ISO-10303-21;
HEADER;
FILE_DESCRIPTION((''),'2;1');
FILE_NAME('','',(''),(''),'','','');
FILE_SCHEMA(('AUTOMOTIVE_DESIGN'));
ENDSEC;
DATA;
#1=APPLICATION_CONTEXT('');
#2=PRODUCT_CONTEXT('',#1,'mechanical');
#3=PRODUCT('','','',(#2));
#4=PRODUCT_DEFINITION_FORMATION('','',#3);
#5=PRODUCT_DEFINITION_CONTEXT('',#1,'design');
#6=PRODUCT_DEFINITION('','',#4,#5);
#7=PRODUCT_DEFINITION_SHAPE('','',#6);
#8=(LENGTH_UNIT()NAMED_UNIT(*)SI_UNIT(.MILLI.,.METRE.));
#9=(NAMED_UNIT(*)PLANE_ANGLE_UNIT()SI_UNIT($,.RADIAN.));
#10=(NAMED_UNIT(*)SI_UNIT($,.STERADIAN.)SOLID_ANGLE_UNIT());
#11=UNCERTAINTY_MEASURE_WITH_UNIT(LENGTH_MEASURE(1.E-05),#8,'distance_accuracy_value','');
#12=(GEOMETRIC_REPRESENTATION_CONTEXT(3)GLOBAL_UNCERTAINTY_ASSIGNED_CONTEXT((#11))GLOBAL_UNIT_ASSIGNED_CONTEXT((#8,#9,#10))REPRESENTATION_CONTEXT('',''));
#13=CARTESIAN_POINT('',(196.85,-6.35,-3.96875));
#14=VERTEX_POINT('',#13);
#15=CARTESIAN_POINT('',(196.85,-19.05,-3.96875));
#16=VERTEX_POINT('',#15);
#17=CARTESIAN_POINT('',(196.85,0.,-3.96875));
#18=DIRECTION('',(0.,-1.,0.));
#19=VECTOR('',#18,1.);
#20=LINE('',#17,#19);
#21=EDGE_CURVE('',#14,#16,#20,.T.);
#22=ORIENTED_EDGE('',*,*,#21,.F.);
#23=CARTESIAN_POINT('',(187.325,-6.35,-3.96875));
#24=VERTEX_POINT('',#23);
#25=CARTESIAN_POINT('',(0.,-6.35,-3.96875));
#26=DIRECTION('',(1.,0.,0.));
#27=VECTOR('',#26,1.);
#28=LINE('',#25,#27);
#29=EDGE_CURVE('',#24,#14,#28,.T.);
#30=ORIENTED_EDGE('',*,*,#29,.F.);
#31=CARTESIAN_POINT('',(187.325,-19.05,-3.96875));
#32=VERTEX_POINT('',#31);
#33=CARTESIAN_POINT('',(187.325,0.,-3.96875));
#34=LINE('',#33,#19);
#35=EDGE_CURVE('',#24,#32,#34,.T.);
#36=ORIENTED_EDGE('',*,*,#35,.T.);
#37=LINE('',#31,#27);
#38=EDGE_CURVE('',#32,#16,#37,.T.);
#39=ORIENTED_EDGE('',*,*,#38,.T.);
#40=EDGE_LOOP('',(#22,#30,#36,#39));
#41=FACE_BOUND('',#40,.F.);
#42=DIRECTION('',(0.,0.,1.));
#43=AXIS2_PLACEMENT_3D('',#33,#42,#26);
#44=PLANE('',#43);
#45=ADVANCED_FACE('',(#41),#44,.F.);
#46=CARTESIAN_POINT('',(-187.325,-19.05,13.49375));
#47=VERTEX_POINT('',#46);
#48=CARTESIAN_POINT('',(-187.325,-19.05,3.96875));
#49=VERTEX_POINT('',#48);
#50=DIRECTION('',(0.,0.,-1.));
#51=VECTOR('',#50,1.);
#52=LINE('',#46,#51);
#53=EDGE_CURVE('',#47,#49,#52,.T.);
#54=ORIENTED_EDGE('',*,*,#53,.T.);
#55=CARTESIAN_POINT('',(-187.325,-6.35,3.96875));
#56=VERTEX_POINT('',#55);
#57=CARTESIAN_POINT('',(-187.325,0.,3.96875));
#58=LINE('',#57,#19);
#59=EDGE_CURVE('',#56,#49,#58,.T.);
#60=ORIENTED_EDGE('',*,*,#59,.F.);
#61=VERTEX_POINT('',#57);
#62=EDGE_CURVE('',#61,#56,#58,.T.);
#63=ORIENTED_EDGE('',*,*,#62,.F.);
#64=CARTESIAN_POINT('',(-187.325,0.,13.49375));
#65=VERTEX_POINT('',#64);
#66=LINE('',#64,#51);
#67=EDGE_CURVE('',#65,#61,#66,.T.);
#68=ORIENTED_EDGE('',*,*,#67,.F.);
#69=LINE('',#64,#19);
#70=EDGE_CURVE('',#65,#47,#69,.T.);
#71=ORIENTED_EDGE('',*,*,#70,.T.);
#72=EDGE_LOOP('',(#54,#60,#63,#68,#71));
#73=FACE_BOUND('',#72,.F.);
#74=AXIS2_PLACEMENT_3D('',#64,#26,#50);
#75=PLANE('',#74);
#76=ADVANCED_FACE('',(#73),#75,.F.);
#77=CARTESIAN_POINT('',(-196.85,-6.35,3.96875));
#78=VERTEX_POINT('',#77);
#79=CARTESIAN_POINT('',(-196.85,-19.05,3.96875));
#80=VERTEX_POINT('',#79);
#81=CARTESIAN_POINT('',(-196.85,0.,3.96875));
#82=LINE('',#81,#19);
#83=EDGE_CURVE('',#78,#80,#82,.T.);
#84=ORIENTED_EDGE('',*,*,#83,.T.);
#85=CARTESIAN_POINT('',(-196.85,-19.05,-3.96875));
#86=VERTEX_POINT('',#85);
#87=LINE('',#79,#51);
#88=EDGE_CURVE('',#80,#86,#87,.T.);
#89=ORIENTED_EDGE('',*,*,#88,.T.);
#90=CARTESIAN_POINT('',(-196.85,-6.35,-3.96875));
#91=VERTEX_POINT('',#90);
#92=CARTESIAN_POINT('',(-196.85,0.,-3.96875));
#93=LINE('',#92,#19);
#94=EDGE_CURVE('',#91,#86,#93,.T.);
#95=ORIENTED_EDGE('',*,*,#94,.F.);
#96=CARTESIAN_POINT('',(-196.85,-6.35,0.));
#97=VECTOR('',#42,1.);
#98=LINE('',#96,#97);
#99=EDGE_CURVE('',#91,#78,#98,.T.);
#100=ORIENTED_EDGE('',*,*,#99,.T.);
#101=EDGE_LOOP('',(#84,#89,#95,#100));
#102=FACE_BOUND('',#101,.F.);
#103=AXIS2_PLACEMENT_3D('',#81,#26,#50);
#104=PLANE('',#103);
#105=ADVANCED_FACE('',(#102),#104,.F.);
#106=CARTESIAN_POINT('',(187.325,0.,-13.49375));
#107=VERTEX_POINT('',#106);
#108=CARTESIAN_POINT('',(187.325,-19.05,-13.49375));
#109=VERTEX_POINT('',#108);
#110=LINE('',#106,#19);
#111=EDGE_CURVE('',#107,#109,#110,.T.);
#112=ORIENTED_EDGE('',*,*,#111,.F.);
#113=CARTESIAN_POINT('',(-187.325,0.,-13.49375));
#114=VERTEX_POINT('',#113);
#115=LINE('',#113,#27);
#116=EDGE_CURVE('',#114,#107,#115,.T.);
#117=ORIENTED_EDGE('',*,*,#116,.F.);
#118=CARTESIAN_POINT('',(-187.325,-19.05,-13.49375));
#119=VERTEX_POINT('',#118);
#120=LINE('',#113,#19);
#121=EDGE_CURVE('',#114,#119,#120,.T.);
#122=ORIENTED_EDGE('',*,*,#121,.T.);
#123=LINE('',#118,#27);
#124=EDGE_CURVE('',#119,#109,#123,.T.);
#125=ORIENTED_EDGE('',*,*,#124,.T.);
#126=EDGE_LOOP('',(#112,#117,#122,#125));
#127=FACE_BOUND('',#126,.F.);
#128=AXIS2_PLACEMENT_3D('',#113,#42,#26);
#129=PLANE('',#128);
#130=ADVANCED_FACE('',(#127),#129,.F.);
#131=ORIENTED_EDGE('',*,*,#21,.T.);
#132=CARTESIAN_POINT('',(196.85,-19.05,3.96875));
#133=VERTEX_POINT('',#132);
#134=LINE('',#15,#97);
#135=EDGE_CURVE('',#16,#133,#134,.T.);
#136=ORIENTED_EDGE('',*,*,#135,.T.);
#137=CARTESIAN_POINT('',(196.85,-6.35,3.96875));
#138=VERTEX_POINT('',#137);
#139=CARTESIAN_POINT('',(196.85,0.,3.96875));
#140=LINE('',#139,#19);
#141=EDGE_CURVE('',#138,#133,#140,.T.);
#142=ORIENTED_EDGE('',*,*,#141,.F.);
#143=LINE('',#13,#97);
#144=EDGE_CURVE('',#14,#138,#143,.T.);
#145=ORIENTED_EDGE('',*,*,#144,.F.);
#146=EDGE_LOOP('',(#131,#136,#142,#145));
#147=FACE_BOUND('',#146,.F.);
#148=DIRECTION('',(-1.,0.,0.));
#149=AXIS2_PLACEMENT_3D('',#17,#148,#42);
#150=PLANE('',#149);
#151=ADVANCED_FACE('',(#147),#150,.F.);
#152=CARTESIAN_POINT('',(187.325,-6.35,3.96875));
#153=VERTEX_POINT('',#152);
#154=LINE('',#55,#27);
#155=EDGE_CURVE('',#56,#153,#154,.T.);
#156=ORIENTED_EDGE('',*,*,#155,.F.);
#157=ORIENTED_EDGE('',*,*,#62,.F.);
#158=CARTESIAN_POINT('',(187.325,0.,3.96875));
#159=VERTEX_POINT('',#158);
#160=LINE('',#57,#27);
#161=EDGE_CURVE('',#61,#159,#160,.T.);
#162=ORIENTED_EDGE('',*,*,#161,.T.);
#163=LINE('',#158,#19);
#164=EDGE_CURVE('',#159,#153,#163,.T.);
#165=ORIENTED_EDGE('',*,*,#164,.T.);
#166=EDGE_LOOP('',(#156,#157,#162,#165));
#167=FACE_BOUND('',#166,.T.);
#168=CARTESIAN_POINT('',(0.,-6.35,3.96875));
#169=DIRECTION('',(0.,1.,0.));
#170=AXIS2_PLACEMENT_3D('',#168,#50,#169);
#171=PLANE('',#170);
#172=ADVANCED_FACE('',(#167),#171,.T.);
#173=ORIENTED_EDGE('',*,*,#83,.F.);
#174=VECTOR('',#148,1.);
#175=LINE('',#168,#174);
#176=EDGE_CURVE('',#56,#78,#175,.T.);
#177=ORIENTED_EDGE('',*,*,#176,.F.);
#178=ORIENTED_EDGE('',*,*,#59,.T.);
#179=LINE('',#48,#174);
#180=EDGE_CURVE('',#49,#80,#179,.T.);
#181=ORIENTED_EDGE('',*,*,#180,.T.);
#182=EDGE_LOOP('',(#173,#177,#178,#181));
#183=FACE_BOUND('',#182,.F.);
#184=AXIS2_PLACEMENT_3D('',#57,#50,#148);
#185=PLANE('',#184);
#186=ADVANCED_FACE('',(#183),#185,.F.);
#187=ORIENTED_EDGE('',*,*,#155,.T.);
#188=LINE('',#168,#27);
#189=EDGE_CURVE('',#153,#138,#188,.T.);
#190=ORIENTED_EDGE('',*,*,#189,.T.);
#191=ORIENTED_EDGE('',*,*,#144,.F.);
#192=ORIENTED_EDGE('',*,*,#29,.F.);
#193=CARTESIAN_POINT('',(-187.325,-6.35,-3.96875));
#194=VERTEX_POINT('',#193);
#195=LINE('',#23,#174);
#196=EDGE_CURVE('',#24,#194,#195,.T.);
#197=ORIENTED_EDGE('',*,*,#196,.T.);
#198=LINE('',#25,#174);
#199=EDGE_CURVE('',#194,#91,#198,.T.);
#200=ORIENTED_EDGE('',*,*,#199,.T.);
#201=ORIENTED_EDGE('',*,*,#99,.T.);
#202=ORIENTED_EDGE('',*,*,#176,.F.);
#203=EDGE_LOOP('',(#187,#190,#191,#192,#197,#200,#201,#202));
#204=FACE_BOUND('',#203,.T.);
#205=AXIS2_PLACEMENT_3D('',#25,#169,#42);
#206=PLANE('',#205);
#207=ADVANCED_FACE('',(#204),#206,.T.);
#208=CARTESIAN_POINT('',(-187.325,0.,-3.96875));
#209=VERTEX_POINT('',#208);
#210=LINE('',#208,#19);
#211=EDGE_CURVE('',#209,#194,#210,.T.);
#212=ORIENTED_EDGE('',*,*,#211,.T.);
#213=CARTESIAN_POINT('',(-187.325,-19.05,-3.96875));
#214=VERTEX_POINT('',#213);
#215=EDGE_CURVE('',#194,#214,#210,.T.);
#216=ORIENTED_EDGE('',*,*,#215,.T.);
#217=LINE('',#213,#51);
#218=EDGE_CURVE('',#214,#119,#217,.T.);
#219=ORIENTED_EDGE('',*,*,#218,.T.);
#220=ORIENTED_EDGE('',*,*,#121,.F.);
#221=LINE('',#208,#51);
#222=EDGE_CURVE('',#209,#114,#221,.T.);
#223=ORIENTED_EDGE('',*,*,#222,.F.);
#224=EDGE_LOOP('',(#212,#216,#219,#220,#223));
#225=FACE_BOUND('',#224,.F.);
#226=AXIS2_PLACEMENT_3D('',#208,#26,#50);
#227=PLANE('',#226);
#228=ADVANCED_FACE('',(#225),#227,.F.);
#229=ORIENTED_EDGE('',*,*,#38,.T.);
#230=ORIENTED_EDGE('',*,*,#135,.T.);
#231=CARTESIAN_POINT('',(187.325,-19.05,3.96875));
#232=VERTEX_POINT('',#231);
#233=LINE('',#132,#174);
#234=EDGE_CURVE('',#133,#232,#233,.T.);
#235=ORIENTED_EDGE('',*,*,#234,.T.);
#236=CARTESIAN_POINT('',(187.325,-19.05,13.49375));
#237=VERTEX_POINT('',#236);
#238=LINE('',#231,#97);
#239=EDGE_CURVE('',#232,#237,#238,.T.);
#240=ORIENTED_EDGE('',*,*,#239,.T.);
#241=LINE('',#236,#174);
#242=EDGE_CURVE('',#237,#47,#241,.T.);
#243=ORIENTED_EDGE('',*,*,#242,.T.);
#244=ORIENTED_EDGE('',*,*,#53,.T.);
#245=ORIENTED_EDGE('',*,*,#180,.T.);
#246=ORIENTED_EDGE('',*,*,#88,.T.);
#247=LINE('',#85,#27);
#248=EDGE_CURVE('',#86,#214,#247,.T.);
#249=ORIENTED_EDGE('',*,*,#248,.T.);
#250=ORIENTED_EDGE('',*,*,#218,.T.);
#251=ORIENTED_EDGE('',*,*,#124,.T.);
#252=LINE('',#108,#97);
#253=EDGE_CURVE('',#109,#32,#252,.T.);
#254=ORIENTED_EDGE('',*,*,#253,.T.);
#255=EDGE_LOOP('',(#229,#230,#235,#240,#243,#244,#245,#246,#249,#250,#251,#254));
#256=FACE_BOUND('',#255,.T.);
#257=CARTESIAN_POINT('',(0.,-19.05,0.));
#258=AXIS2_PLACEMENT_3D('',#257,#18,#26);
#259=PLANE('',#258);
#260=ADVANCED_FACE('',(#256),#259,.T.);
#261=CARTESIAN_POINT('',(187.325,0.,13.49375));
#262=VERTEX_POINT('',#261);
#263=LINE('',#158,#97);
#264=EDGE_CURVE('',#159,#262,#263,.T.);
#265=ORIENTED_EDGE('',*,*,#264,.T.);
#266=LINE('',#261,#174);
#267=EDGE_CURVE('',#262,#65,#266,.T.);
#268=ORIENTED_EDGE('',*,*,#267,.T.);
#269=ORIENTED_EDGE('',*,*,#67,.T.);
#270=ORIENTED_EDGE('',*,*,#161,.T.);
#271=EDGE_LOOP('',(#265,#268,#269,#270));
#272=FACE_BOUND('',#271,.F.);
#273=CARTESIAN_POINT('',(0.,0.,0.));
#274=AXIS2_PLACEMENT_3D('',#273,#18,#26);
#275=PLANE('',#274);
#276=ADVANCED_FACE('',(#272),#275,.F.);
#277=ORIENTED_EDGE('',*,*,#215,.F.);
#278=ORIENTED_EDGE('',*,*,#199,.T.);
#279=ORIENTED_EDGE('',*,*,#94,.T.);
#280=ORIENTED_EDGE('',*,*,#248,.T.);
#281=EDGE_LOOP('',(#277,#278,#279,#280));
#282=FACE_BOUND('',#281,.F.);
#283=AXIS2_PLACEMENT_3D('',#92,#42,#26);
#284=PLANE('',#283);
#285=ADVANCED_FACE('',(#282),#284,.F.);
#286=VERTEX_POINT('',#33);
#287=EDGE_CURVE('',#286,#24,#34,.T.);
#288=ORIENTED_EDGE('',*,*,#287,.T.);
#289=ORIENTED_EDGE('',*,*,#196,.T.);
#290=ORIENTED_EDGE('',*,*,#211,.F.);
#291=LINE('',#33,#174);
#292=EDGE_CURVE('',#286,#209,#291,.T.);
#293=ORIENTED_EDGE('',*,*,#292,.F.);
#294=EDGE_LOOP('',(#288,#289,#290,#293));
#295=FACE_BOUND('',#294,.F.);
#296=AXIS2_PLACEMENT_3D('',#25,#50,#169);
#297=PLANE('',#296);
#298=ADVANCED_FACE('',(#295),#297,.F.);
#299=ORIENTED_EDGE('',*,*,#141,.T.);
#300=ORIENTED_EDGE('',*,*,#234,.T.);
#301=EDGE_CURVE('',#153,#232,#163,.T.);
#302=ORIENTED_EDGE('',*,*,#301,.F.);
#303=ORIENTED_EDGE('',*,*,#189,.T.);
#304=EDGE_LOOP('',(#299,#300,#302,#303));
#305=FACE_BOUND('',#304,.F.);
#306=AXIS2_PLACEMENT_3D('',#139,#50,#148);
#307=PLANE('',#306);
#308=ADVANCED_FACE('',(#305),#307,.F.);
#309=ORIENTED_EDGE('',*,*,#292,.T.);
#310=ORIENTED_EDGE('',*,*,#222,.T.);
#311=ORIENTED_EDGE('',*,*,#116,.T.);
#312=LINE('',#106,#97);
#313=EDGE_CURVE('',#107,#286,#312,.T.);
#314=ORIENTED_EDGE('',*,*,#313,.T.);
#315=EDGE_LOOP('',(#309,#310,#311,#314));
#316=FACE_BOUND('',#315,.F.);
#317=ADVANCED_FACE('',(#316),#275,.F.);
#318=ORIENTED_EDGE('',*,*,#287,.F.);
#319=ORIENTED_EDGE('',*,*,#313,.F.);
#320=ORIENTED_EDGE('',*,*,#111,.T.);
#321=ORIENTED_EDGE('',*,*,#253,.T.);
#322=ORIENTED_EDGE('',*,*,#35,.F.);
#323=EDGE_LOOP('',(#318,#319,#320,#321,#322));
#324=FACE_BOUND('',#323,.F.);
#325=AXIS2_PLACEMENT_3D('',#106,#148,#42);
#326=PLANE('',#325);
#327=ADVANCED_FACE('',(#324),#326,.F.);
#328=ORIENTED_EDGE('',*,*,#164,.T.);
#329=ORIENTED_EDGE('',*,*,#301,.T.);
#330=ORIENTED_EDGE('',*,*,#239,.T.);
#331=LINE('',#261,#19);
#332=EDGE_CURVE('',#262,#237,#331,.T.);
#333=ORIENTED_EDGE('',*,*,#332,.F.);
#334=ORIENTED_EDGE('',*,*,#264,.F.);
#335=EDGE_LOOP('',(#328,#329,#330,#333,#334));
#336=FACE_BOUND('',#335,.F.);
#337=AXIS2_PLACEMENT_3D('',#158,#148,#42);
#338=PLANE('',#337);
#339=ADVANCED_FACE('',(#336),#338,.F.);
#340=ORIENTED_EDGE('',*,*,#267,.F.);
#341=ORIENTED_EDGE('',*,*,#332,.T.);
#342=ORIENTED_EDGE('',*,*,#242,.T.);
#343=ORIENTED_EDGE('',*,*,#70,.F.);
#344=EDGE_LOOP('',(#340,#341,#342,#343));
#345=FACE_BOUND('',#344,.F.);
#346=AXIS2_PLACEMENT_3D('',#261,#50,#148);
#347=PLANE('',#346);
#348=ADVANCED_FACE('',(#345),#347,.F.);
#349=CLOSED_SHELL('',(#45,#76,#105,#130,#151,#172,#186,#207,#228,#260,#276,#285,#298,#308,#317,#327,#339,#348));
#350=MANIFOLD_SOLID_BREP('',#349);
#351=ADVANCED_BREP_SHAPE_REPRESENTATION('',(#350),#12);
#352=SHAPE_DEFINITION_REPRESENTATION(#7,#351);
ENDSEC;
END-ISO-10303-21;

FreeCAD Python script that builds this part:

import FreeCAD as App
import Part
import Sketcher
from FreeCAD import Vector
Q = App.Units.Quantity

doc = App.newDocument("Part")
body = doc.addObject("PartDesign::Body", "Body")

# Sketch on XZ plane
sketch1 = body.newObject("Sketcher::SketchObject", "Sketch")
sketch1.AttachmentSupport = (doc.getObject("XZ_Plane"), [""])
sketch1.MapMode = "FlatFace"
sketch1.addGeometry([
    Part.LineSegment(Vector(-197, 4, 0), Vector(-197, -4, 0)),  # 0
    Part.LineSegment(Vector(-197, -4, 0), Vector(-187, -4, 0)),  # 1
    Part.LineSegment(Vector(-187, -4, 0), Vector(-187, -13, 0)),  # 2
    Part.LineSegment(Vector(-187, -13, 0), Vector(187, -13, 0)),  # 3
    Part.LineSegment(Vector(187, -13, 0), Vector(187, -4, 0)),  # 4
    Part.LineSegment(Vector(187, -4, 0), Vector(197, -4, 0)),  # 5
    Part.LineSegment(Vector(197, -4, 0), Vector(197, 4, 0)),  # 6
    Part.LineSegment(Vector(197, 4, 0), Vector(187, 4, 0)),  # 7
    Part.LineSegment(Vector(187, 4, 0), Vector(187, 13, 0)),  # 8
    Part.LineSegment(Vector(187, 13, 0), Vector(-187, 13, 0)),  # 9
    Part.LineSegment(Vector(-187, 13, 0), Vector(-187, 4, 0)),  # 10
    Part.LineSegment(Vector(-187, 4, 0), Vector(-197, 4, 0)),  # 11
], False)
sketch1.addConstraint([
    Sketcher.Constraint("Coincident", 0, 2, 1, 1),
    Sketcher.Constraint("Coincident", 1, 2, 2, 1),
    Sketcher.Constraint("Coincident", 2, 2, 3, 1),
    Sketcher.Constraint("Coincident", 3, 2, 4, 1),
    Sketcher.Constraint("Coincident", 4, 2, 5, 1),
    Sketcher.Constraint("Coincident", 5, 2, 6, 1),
    Sketcher.Constraint("Coincident", 6, 2, 7, 1),
    Sketcher.Constraint("Coincident", 7, 2, 8, 1),
    Sketcher.Constraint("Coincident", 8, 2, 9, 1),
    Sketcher.Constraint("Coincident", 9, 2, 10, 1),
    Sketcher.Constraint("Coincident", 10, 2, 11, 1),
    Sketcher.Constraint("Coincident", 11, 2, 0, 1),
    Sketcher.Constraint("Vertical", 0),
    Sketcher.Constraint("Horizontal", 1),
    Sketcher.Constraint("Vertical", 2),
    Sketcher.Constraint("Horizontal", 3),
    Sketcher.Constraint("Vertical", 4),
    Sketcher.Constraint("Horizontal", 5),
    Sketcher.Constraint("Vertical", 6),
    Sketcher.Constraint("Horizontal", 7),
    Sketcher.Constraint("Vertical", 8),
    Sketcher.Constraint("Horizontal", 9),
    Sketcher.Constraint("Vertical", 10),
    Sketcher.Constraint("Horizontal", 11),
    Sketcher.Constraint("Symmetric", 0, 2, 6, 2, -1, 1),
    Sketcher.Constraint("Symmetric", 2, 2, 8, 2, -1, 1),
    Sketcher.Constraint("Symmetric", 4, 2, 10, 2, -1, 1),
    Sketcher.Constraint("Symmetric", 1, 2, 4, 2, -2),
    Sketcher.Constraint("Equal", 11, 2),
    Sketcher.Constraint("DistanceX", 3, 1, 3, 2, Q("14.75 in")),
    Sketcher.Constraint("DistanceX", 0, 2, 5, 2, Q("15.5 in")),
    Sketcher.Constraint("DistanceY", 0, 2, 0, 1, Q("0.3125 in")),
])
pad1 = body.newObject("PartDesign::Pad", "Pad")
pad1.Profile = sketch1
pad1.Length = Q("0.75 in")

# Sketch on YZ plane
sketch2 = body.newObject("Sketcher::SketchObject", "Sketch001")
sketch2.AttachmentSupport = (doc.getObject("YZ_Plane"), [""])
sketch2.MapMode = "FlatFace"
sketch2.addGeometry([
    Part.LineSegment(Vector(-6, 4, 0), Vector(-6, -4, 0)),
    Part.LineSegment(Vector(-6, -4, 0), Vector(0, -4, 0)),
    Part.LineSegment(Vector(0, -4, 0), Vector(0, 4, 0)),
    Part.LineSegment(Vector(0, 4, 0), Vector(-6, 4, 0)),
], False)
sketch2.addConstraint([
    Sketcher.Constraint("Coincident", 0, 2, 1, 1),
    Sketcher.Constraint("Coincident", 1, 2, 2, 1),
    Sketcher.Constraint("Coincident", 2, 2, 3, 1),
    Sketcher.Constraint("Coincident", 3, 2, 0, 1),
    Sketcher.Constraint("Vertical", 0),
    Sketcher.Constraint("Horizontal", 1),
    Sketcher.Constraint("Vertical", 2),
    Sketcher.Constraint("Horizontal", 3),
    Sketcher.Constraint("Symmetric", 1, 2, 2, 2, -1, 1),
    Sketcher.Constraint("DistanceX", 1, 1, 1, 2, Q("0.25 in")),
    Sketcher.Constraint("DistanceY", 0, 2, 0, 1, Q("0.3125 in")),
])
pocket1 = body.newObject("PartDesign::Pocket", "Pocket")
pocket1.Profile = sketch2
pocket1.Type = "ThroughAll"
pocket1.Midplane = True

doc.recompute()
